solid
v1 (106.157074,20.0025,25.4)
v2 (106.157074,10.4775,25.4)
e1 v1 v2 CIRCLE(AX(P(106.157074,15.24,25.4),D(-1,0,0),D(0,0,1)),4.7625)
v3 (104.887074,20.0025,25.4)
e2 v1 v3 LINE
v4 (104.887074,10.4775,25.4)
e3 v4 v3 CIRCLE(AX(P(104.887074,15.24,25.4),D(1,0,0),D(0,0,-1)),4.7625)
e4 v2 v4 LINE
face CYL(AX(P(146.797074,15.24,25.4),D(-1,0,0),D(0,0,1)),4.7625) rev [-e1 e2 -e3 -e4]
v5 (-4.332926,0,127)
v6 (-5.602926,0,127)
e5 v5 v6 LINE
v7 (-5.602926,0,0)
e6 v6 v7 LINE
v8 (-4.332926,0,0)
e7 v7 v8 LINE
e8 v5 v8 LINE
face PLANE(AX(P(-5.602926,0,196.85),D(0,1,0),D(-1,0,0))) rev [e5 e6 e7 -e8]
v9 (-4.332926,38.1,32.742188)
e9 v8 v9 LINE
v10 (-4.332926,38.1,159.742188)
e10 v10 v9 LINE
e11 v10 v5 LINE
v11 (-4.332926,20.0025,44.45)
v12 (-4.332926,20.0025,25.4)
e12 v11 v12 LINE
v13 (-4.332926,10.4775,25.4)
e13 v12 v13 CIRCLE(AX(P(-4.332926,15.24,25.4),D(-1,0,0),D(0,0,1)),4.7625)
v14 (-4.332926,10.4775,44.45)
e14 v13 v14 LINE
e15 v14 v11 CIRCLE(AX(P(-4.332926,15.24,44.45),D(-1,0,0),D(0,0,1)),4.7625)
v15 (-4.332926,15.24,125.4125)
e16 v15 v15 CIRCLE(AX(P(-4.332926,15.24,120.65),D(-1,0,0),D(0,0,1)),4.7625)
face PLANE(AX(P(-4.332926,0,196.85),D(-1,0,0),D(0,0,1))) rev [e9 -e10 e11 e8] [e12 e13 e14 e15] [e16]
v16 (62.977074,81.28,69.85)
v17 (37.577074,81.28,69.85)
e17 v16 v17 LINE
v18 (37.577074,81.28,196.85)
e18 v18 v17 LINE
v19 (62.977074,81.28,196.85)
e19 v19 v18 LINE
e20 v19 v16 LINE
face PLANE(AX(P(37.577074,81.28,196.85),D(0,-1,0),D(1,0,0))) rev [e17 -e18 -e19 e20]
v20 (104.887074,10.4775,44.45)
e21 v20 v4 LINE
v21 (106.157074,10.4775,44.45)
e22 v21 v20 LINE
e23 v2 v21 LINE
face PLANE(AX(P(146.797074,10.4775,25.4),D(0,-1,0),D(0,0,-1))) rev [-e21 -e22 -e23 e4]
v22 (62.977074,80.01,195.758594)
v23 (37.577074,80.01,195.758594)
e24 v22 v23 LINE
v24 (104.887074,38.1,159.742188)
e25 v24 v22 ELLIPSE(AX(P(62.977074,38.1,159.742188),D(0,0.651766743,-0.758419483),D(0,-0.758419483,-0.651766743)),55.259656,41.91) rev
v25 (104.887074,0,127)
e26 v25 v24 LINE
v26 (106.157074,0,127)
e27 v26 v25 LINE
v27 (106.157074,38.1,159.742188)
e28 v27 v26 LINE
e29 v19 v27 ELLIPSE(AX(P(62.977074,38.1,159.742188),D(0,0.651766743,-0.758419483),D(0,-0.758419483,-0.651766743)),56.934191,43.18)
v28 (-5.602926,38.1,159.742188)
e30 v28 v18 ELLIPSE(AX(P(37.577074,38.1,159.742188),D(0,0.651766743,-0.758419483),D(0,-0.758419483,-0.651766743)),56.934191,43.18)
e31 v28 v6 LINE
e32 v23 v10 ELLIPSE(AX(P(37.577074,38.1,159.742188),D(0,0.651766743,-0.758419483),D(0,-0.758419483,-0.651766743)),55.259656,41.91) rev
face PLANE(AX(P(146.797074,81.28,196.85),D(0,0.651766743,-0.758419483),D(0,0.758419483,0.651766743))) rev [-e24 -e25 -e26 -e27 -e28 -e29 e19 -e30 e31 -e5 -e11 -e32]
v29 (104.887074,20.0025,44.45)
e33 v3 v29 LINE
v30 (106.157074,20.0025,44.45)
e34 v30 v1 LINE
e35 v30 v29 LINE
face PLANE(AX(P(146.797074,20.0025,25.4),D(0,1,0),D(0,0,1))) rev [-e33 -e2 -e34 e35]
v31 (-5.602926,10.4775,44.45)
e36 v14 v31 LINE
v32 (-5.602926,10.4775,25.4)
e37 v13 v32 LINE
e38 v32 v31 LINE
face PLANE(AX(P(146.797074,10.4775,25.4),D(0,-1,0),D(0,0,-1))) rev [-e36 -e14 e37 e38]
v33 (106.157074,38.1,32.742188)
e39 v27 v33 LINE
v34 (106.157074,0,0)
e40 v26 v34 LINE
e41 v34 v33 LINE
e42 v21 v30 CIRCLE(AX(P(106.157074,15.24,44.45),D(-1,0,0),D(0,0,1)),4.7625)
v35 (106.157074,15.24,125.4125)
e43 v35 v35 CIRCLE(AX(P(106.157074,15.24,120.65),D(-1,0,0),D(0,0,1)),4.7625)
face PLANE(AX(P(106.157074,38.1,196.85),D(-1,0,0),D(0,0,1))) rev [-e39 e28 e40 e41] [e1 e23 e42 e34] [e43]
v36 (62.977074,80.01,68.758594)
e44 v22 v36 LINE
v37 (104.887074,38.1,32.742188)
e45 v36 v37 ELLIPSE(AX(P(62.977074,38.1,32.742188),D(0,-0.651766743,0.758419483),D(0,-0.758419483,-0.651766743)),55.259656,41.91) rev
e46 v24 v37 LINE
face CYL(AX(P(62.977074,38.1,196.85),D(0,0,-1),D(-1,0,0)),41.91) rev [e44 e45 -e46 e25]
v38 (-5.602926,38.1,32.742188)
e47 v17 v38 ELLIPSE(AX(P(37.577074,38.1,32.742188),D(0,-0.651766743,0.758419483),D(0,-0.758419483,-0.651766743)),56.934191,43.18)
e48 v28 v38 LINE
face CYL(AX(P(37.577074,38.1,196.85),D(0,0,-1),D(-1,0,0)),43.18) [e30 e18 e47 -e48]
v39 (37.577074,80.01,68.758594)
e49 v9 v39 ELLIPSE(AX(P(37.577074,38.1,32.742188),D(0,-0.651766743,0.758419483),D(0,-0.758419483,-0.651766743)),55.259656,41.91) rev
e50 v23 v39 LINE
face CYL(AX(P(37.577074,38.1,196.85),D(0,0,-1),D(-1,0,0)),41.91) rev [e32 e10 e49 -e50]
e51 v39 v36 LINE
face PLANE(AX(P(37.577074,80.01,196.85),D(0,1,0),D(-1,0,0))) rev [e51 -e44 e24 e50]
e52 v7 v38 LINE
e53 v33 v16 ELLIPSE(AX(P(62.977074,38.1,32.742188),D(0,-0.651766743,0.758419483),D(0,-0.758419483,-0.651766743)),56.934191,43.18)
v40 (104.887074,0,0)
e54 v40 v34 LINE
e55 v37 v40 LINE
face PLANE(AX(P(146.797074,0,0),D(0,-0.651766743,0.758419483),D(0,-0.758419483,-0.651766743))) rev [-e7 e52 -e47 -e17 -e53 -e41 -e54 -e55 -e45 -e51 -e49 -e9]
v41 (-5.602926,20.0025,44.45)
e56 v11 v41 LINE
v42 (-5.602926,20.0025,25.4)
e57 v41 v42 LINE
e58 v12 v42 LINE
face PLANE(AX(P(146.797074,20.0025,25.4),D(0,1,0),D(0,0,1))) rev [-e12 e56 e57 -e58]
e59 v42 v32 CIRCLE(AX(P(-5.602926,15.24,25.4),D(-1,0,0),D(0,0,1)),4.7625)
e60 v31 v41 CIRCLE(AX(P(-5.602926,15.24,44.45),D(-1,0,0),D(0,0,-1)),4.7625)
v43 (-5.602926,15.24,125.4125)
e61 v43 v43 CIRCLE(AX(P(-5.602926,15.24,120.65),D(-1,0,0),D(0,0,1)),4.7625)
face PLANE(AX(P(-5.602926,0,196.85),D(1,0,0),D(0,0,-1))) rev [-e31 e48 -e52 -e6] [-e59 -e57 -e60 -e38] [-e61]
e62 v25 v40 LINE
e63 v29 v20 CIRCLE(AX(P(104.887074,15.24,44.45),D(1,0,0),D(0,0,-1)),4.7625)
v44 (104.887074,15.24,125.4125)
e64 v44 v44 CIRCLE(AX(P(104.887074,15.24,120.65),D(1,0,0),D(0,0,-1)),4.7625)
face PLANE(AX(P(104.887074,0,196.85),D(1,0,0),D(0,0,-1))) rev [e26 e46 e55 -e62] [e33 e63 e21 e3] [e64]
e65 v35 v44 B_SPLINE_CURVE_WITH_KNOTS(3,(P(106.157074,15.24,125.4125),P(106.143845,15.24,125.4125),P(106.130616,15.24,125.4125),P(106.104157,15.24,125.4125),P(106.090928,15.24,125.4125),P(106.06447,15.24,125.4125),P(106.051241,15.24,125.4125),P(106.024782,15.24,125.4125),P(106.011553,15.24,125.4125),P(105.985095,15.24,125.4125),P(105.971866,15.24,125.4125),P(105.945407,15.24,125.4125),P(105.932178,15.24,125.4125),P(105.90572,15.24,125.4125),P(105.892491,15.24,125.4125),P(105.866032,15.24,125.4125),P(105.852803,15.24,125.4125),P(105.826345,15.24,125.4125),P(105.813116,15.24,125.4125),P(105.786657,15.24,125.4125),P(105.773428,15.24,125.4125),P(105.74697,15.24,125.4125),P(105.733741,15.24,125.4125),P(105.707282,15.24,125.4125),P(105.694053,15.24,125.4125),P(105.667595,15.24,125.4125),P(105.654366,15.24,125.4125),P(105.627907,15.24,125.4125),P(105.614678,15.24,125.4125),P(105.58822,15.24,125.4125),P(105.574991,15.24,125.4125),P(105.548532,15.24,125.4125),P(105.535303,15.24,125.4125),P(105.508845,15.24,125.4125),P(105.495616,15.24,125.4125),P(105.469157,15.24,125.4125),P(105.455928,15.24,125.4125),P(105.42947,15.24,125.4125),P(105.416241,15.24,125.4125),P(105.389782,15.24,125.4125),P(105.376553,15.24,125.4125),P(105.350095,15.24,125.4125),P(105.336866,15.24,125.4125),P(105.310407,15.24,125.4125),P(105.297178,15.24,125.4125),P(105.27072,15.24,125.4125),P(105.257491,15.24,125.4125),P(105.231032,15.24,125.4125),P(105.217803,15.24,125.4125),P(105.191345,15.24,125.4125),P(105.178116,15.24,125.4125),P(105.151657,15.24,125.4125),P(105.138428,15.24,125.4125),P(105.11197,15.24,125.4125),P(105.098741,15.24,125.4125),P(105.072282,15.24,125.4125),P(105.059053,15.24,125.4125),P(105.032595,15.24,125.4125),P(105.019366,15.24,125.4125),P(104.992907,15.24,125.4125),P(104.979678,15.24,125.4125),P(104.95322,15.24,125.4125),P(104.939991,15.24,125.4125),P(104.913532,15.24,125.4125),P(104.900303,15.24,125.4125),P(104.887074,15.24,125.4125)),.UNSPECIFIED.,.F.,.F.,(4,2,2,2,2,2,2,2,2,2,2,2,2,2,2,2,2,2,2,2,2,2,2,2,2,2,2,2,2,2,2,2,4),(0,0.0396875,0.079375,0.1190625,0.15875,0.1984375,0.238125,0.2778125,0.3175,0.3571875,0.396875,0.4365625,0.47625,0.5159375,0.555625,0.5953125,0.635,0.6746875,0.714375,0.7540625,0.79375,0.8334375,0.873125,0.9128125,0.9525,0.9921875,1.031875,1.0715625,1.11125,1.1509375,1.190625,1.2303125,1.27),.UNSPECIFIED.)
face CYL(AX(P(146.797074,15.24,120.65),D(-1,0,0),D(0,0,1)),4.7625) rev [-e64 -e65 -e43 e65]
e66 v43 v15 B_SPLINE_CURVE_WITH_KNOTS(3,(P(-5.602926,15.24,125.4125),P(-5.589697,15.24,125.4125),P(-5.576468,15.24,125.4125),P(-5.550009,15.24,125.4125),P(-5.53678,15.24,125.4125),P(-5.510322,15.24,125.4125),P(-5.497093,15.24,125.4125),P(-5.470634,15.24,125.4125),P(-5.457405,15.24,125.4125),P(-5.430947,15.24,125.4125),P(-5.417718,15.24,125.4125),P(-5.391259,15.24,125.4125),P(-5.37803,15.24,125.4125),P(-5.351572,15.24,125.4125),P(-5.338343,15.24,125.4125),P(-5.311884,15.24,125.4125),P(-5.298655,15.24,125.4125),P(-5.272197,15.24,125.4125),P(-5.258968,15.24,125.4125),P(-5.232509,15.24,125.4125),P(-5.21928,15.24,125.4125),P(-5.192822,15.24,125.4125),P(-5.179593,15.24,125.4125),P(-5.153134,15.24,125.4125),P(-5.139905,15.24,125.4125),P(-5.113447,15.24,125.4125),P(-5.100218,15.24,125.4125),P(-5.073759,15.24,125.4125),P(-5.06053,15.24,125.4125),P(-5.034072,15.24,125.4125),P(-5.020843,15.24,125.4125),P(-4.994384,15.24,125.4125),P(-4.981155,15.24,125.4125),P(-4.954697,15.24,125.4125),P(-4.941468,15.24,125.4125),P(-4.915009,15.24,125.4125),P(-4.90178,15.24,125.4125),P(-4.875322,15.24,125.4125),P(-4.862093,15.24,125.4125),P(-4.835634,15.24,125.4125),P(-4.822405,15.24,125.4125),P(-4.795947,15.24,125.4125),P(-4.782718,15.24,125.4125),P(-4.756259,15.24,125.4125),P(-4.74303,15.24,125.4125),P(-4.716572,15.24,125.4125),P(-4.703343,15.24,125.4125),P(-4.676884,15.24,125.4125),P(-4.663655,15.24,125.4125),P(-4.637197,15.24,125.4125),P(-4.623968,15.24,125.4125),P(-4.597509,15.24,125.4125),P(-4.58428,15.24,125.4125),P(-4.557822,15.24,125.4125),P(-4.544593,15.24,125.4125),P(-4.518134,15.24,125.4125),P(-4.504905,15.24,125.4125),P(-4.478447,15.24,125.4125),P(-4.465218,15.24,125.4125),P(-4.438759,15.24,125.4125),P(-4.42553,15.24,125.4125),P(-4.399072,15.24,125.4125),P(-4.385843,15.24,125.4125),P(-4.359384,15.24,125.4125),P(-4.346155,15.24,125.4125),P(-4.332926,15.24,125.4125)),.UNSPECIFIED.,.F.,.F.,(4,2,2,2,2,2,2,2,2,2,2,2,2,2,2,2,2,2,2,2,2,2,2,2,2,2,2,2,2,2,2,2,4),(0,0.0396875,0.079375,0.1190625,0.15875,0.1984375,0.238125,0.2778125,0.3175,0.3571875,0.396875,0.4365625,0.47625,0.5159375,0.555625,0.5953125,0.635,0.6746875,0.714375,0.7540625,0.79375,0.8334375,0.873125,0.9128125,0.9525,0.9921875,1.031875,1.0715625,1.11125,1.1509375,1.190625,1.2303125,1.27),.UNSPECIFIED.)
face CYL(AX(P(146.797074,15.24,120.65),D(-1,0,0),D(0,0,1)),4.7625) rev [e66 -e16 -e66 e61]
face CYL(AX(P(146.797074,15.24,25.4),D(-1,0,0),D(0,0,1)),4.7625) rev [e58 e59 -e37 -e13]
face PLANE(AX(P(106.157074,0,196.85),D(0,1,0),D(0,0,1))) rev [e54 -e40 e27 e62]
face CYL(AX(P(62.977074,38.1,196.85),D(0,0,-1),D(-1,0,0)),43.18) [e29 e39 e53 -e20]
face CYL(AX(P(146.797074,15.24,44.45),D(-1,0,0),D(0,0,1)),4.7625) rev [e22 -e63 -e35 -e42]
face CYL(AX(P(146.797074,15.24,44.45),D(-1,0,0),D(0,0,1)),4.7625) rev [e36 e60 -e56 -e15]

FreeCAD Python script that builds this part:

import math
import FreeCAD as App
import Part
import Sketcher
Q = App.Units.Quantity


def add_polygon(sketch, points):
    """Adds a closed chain of lines whose ends are joined by coincident constraints."""
    first, n = sketch.GeometryCount, len(points)
    for a, b in zip(points, points[1:] + points[:1]):
        sketch.addGeometry(Part.LineSegment(App.Vector(*a, 0), App.Vector(*b, 0)), False)
    for i in range(n):
        sketch.addConstraint(Sketcher.Constraint("Coincident", first + i, 2, first + (i + 1) % n, 1))

doc = App.newDocument("Part")
body = doc.addObject("PartDesign::Body", "Body")

# Sketch on XY plane
sketch1 = body.newObject("Sketcher::SketchObject", "Sketch")
sketch1.AttachmentSupport = (doc.getObject("XY_Plane"), [""])
sketch1.MapMode = "FlatFace"
sketch1.addGeometry([
    Part.LineSegment(App.Vector(-5.6, 0, 0), App.Vector(-4.3, 0, 0)),  # 0
    Part.LineSegment(App.Vector(-4.3, 0, 0), App.Vector(-4.3, 38.1, 0)),  # 1
    Part.ArcOfCircle(Part.Circle(App.Vector(37.6, 38.1, 0), App.Vector(0, 0, 1), 41.9), math.radians(90), math.radians(180)),  # 2
    Part.LineSegment(App.Vector(37.6, 80, 0), App.Vector(63, 80, 0)),  # 3
    Part.ArcOfCircle(Part.Circle(App.Vector(63, 38.1, 0), App.Vector(0, 0, 1), 41.9), math.radians(0), math.radians(90)),  # 4
    Part.LineSegment(App.Vector(104.9, 38.1, 0), App.Vector(104.9, 0, 0)),  # 5
    Part.LineSegment(App.Vector(104.9, 0, 0), App.Vector(106.2, 0, 0)),  # 6
    Part.LineSegment(App.Vector(106.2, 0, 0), App.Vector(106.2, 38.1, 0)),  # 7
    Part.ArcOfCircle(Part.Circle(App.Vector(63, 38.1, 0), App.Vector(0, 0, 1), 43.2), math.radians(0), math.radians(90)),  # 8
    Part.LineSegment(App.Vector(63, 81.3, 0), App.Vector(37.6, 81.3, 0)),  # 9
    Part.ArcOfCircle(Part.Circle(App.Vector(37.6, 38.1, 0), App.Vector(0, 0, 1), 43.2), math.radians(90), math.radians(180)),  # 10
    Part.LineSegment(App.Vector(-5.6, 38.1, 0), App.Vector(-5.6, 0, 0)),  # 11
], False)
sketch1.addConstraint([
    Sketcher.Constraint("Coincident", 0, 2, 1, 1),
    Sketcher.Constraint("Tangent", 1, 2, 2, 2),
    Sketcher.Constraint("Tangent", 2, 1, 3, 1),
    Sketcher.Constraint("Tangent", 3, 2, 4, 2),
    Sketcher.Constraint("Tangent", 4, 1, 5, 1),
    Sketcher.Constraint("Coincident", 5, 2, 6, 1),
    Sketcher.Constraint("Coincident", 6, 2, 7, 1),
    Sketcher.Constraint("Tangent", 7, 2, 8, 1),
    Sketcher.Constraint("Tangent", 8, 2, 9, 1),
    Sketcher.Constraint("Tangent", 9, 2, 10, 1),
    Sketcher.Constraint("Tangent", 10, 2, 11, 1),
    Sketcher.Constraint("Coincident", 11, 2, 0, 1),
    Sketcher.Constraint("Horizontal", 0),
    Sketcher.Constraint("Vertical", 1),
    Sketcher.Constraint("Horizontal", 3),
    Sketcher.Constraint("Vertical", 5),
    Sketcher.Constraint("Horizontal", 6),
    Sketcher.Constraint("Vertical", 7),
    Sketcher.Constraint("Horizontal", 9),
    Sketcher.Constraint("Vertical", 11),
    Sketcher.Constraint("Coincident", 8, 3, 4, 3),
    Sketcher.Constraint("Coincident", 10, 3, 2, 3),
    Sketcher.Constraint("Equal", 2, 4),
    Sketcher.Constraint("PointOnObject", 0, 2, -1),
    Sketcher.Constraint("PointOnObject", 5, 2, -1),
    Sketcher.Constraint("Radius", 8, Q("1.7 in")),
    Sketcher.Constraint("DistanceX", 3, 1, 3, 2, Q("1 in")),
    Sketcher.Constraint("Radius", 2, Q("1.65 in")),
    Sketcher.Constraint("DistanceY", 1, 1, 1, 2, Q("1.5 in")),
    Sketcher.Constraint("DistanceX", -1, 1, 2, 3, Q("37.577074 mm")),
])
pad1 = body.newObject("PartDesign::Pad", "Pad")
pad1.Profile = sketch1
pad1.Length = Q("7.75 in")

# Sketch on YZ plane
sketch2 = body.newObject("Sketcher::SketchObject", "Sketch001")
sketch2.AttachmentSupport = (doc.getObject("YZ_Plane"), [""])
sketch2.MapMode = "FlatFace"
sketch2.AttachmentOffset = App.Placement(App.Vector(0, 0, -5.602926), App.Rotation())
add_polygon(sketch2, [(0, 0), (81, 70), (81, 0)])  # lines 0-2
add_polygon(sketch2, [(81, 197), (0, 127), (0, 197)])  # lines 3-5
sketch2.addConstraint([
    Sketcher.Constraint("Vertical", 1),
    Sketcher.Constraint("Horizontal", 2),
    Sketcher.Constraint("Vertical", 4),
    Sketcher.Constraint("Horizontal", 5),
    Sketcher.Constraint("Coincident", 2, 2, -1, 1),
    Sketcher.Constraint("PointOnObject", 3, 2, -2),
    Sketcher.Constraint("Parallel", 0, 3),
    Sketcher.Constraint("Vertical", 1, 2, 5, 2),
    Sketcher.Constraint("DistanceX", 2, 2, 2, 1, Q("3.2 in")),
    Sketcher.Constraint("DistanceY", -1, 1, 3, 2, Q("5 in")),
    Sketcher.Constraint("DistanceY", 1, 2, 1, 1, Q("2.75 in")),
])
pocket1 = body.newObject("PartDesign::Pocket", "Pocket")
pocket1.Profile = sketch2
pocket1.Length = Q("6 in")
pocket1.Reversed = True

# Sketch on YZ plane
sketch3 = body.newObject("Sketcher::SketchObject", "Sketch002")
sketch3.AttachmentSupport = (doc.getObject("YZ_Plane"), [""])
sketch3.MapMode = "FlatFace"
sketch3.AttachmentOffset = App.Placement(App.Vector(0, 0, -5.602926), App.Rotation())
sketch3.addGeometry([
    Part.Circle(App.Vector(15.2, 120.7, 0), App.Vector(0, 0, 1), 4.8),  # 0
    Part.LineSegment(App.Vector(20, 44.5, 0), App.Vector(20, 25.4, 0)),  # 1
    Part.ArcOfCircle(Part.Circle(App.Vector(15.2, 25.4, 0), App.Vector(0, 0, 1), 4.8), math.radians(180), math.radians(360)),  # 2
    Part.LineSegment(App.Vector(10.5, 25.4, 0), App.Vector(10.5, 44.5, 0)),  # 3
    Part.ArcOfCircle(Part.Circle(App.Vector(15.2, 44.5, 0), App.Vector(0, 0, 1), 4.8), math.radians(0), math.radians(180)),  # 4
], False)
sketch3.addConstraint([
    Sketcher.Constraint("Tangent", 1, 2, 2, 2),
    Sketcher.Constraint("Tangent", 2, 1, 3, 1),
    Sketcher.Constraint("Tangent", 3, 2, 4, 2),
    Sketcher.Constraint("Tangent", 4, 1, 1, 1),
    Sketcher.Constraint("Vertical", 1),
    Sketcher.Constraint("Vertical", 3),
    Sketcher.Constraint("Equal", 0, 2),
    Sketcher.Constraint("Vertical", 0, 3, 2, 3),
    Sketcher.Constraint("Diameter", 0, Q("0.375 in")),
    Sketcher.Constraint("DistanceY", -1, 1, 2, 3, Q("1 in")),
    Sketcher.Constraint("DistanceY", 4, 3, 0, 3, Q("3 in")),
    Sketcher.Constraint("DistanceY", 1, 2, 1, 1, Q("0.75 in")),
    Sketcher.Constraint("DistanceX", -1, 1, 0, 3, Q("0.6 in")),
])
pocket2 = body.newObject("PartDesign::Pocket", "Pocket001")
pocket2.Profile = sketch3
pocket2.Length = Q("6 in")
pocket2.Reversed = True

doc.recompute()
